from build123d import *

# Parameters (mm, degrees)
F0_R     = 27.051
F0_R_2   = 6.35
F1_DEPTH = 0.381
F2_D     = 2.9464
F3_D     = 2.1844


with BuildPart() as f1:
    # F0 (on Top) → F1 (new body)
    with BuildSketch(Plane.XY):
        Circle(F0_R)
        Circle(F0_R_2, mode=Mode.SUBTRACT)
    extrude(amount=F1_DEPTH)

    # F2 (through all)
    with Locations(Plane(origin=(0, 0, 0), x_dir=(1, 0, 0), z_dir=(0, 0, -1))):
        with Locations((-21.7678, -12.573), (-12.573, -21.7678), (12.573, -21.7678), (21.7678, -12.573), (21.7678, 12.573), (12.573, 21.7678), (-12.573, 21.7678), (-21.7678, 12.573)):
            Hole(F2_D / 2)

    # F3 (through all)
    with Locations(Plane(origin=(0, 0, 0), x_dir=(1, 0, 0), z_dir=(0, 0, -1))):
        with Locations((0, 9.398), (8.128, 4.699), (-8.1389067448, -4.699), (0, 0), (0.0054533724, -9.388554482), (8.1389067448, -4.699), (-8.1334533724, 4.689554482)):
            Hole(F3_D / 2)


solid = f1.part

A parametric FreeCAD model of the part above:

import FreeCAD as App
import Part
import Sketcher
from FreeCAD import Vector
Q = App.Units.Quantity

doc = App.newDocument("Part")
body = doc.addObject("PartDesign::Body", "Body")

# Sketch on XY plane
sketch1 = body.newObject("Sketcher::SketchObject", "Sketch")
sketch1.AttachmentSupport = (doc.getObject("XY_Plane"), [""])
sketch1.MapMode = "FlatFace"
sketch1.addGeometry([
    Part.Circle(Vector(0, 0, 0), Vector(0, 0, 1), 27),
    Part.Circle(Vector(0, 0, 0), Vector(0, 0, 1), 6),
], False)
sketch1.addConstraint([
    Sketcher.Constraint("Coincident", 0, 3, -1, 1),
    Sketcher.Constraint("Coincident", 1, 3, -1, 1),
    Sketcher.Constraint("Diameter", 1, Q("0.5 in")),
    Sketcher.Constraint("Diameter", 0, Q("2.13 in")),
])
pad1 = body.newObject("PartDesign::Pad", "Pad")
pad1.Profile = sketch1
pad1.Length = Q("0.015 in")

# Sketch on XY plane
sketch2 = body.newObject("Sketcher::SketchObject", "Sketch001")
sketch2.AttachmentSupport = (doc.getObject("XY_Plane"), [""])
sketch2.MapMode = "FlatFace"
sketch2.addGeometry([
    Part.Circle(Vector(-21.8, 12.6, 0), Vector(0, 0, 1), 1.5),  # 0
    Part.Circle(Vector(-12.6, 21.8, 0), Vector(0, 0, 1), 1.5),  # 1
    Part.Circle(Vector(12.6, 21.8, 0), Vector(0, 0, 1), 1.5),  # 2
    Part.Circle(Vector(21.8, 12.6, 0), Vector(0, 0, 1), 1.5),  # 3
    Part.Circle(Vector(21.8, -12.6, 0), Vector(0, 0, 1), 1.5),  # 4
    Part.Circle(Vector(12.6, -21.8, 0), Vector(0, 0, 1), 1.5),  # 5
    Part.Circle(Vector(-12.6, -21.8, 0), Vector(0, 0, 1), 1.5),  # 6
    Part.Circle(Vector(-21.8, -12.6, 0), Vector(0, 0, 1), 1.5),  # 7
], False)
sketch2.addConstraint([
    Sketcher.Constraint("Equal", 0, 1),
    Sketcher.Constraint("Equal", 1, 2),
    Sketcher.Constraint("Equal", 2, 3),
    Sketcher.Constraint("Equal", 3, 4),
    Sketcher.Constraint("Equal", 4, 5),
    Sketcher.Constraint("Equal", 5, 6),
    Sketcher.Constraint("Equal", 6, 7),
    Sketcher.Constraint("Symmetric", 0, 3, 4, 3, -1, 1),
    Sketcher.Constraint("Symmetric", 1, 3, 5, 3, -1, 1),
    Sketcher.Constraint("Symmetric", 2, 3, 6, 3, -1, 1),
    Sketcher.Constraint("Symmetric", 3, 3, 7, 3, -1, 1),
    Sketcher.Constraint("Symmetric", 1, 3, 2, 3, -2),
    Sketcher.Constraint("Symmetric", 0, 3, 3, 3, -2),
    Sketcher.Constraint("Diameter", 0, Q("0.116 in")),
    Sketcher.Constraint("DistanceX", 1, 3, 2, 3, Q("0.99 in")),
    Sketcher.Constraint("DistanceY", 4, 3, 3, 3, Q("0.99 in")),
    Sketcher.Constraint("DistanceX", 0, 3, -1, 1, Q("0.857 in")),
    Sketcher.Constraint("DistanceY", -1, 1, 1, 3, Q("0.857 in")),
])
doc.recompute()
hole = body.newObject("PartDesign::Hole", "Hole")
hole.Profile = sketch2
hole.ThreadType = "None"
hole.Diameter = Q("0.116 in")
hole.DepthType = "ThroughAll"
hole.Reversed = True

# Sketch on XY plane
sketch3 = body.newObject("Sketcher::SketchObject", "Sketch002")
sketch3.AttachmentSupport = (doc.getObject("XY_Plane"), [""])
sketch3.MapMode = "FlatFace"
sketch3.addGeometry([
    Part.Circle(Vector(0, -9.4, 0), Vector(0, 0, 1), 1.1),  # 0
    Part.Circle(Vector(8.1, -4.7, 0), Vector(0, 0, 1), 1.1),  # 1
    Part.Circle(Vector(-8.1, 4.7, 0), Vector(0, 0, 1), 1.1),  # 2
    Part.Circle(Vector(0, 0, 0), Vector(0, 0, 1), 1.1),  # 3
    Part.Circle(Vector(0, 9.4, 0), Vector(0, 0, 1), 1.1),  # 4
    Part.Circle(Vector(8.1, 4.7, 0), Vector(0, 0, 1), 1.1),  # 5
    Part.Circle(Vector(-8.1, -4.7, 0), Vector(0, 0, 1), 1.1),  # 6
], False)
sketch3.addConstraint([
    Sketcher.Constraint("Coincident", 3, 3, -1, 1),
    Sketcher.Constraint("Equal", 0, 1),
    Sketcher.Constraint("Equal", 1, 2),
    Sketcher.Constraint("Equal", 2, 3),
    Sketcher.Constraint("Equal", 3, 4),
    Sketcher.Constraint("Equal", 4, 5),
    Sketcher.Constraint("Equal", 5, 6),
    Sketcher.Constraint("Symmetric", 2, 3, 5, 3, -2),
    Sketcher.Constraint("PointOnObject", 0, 3, -2),
    Sketcher.Constraint("Diameter", 0, Q("0.086 in")),
    Sketcher.Constraint("DistanceY", 0, 3, -1, 1, Q("0.37 in")),
    Sketcher.Constraint("DistanceX", -1, 1, 1, 3, Q("0.32 in")),
    Sketcher.Constraint("DistanceY", 1, 3, 2, 3, Q("0.37 in")),
    Sketcher.Constraint("DistanceY", 1, 3, -1, 1, Q("0.185 in")),
    Sketcher.Constraint("DistanceX", 2, 3, 4, 3, Q("8.14436 mm")),
    Sketcher.Constraint("DistanceY", 6, 3, 4, 3, Q("14.078109 mm")),
    Sketcher.Constraint("DistanceX", 2, 3, -1, 1, Q("8.138907 mm")),
    Sketcher.Constraint("DistanceY", -1, 1, 4, 3, Q("9.388554 mm")),
    Sketcher.Constraint("DistanceX", 6, 3, -1, 1, Q("8.133453 mm")),
])
doc.recompute()
hole2 = body.newObject("PartDesign::Hole", "Hole001")
hole2.Profile = sketch3
hole2.ThreadType = "None"
hole2.Diameter = Q("0.086 in")
hole2.DepthType = "ThroughAll"
hole2.Reversed = True

doc.recompute()
